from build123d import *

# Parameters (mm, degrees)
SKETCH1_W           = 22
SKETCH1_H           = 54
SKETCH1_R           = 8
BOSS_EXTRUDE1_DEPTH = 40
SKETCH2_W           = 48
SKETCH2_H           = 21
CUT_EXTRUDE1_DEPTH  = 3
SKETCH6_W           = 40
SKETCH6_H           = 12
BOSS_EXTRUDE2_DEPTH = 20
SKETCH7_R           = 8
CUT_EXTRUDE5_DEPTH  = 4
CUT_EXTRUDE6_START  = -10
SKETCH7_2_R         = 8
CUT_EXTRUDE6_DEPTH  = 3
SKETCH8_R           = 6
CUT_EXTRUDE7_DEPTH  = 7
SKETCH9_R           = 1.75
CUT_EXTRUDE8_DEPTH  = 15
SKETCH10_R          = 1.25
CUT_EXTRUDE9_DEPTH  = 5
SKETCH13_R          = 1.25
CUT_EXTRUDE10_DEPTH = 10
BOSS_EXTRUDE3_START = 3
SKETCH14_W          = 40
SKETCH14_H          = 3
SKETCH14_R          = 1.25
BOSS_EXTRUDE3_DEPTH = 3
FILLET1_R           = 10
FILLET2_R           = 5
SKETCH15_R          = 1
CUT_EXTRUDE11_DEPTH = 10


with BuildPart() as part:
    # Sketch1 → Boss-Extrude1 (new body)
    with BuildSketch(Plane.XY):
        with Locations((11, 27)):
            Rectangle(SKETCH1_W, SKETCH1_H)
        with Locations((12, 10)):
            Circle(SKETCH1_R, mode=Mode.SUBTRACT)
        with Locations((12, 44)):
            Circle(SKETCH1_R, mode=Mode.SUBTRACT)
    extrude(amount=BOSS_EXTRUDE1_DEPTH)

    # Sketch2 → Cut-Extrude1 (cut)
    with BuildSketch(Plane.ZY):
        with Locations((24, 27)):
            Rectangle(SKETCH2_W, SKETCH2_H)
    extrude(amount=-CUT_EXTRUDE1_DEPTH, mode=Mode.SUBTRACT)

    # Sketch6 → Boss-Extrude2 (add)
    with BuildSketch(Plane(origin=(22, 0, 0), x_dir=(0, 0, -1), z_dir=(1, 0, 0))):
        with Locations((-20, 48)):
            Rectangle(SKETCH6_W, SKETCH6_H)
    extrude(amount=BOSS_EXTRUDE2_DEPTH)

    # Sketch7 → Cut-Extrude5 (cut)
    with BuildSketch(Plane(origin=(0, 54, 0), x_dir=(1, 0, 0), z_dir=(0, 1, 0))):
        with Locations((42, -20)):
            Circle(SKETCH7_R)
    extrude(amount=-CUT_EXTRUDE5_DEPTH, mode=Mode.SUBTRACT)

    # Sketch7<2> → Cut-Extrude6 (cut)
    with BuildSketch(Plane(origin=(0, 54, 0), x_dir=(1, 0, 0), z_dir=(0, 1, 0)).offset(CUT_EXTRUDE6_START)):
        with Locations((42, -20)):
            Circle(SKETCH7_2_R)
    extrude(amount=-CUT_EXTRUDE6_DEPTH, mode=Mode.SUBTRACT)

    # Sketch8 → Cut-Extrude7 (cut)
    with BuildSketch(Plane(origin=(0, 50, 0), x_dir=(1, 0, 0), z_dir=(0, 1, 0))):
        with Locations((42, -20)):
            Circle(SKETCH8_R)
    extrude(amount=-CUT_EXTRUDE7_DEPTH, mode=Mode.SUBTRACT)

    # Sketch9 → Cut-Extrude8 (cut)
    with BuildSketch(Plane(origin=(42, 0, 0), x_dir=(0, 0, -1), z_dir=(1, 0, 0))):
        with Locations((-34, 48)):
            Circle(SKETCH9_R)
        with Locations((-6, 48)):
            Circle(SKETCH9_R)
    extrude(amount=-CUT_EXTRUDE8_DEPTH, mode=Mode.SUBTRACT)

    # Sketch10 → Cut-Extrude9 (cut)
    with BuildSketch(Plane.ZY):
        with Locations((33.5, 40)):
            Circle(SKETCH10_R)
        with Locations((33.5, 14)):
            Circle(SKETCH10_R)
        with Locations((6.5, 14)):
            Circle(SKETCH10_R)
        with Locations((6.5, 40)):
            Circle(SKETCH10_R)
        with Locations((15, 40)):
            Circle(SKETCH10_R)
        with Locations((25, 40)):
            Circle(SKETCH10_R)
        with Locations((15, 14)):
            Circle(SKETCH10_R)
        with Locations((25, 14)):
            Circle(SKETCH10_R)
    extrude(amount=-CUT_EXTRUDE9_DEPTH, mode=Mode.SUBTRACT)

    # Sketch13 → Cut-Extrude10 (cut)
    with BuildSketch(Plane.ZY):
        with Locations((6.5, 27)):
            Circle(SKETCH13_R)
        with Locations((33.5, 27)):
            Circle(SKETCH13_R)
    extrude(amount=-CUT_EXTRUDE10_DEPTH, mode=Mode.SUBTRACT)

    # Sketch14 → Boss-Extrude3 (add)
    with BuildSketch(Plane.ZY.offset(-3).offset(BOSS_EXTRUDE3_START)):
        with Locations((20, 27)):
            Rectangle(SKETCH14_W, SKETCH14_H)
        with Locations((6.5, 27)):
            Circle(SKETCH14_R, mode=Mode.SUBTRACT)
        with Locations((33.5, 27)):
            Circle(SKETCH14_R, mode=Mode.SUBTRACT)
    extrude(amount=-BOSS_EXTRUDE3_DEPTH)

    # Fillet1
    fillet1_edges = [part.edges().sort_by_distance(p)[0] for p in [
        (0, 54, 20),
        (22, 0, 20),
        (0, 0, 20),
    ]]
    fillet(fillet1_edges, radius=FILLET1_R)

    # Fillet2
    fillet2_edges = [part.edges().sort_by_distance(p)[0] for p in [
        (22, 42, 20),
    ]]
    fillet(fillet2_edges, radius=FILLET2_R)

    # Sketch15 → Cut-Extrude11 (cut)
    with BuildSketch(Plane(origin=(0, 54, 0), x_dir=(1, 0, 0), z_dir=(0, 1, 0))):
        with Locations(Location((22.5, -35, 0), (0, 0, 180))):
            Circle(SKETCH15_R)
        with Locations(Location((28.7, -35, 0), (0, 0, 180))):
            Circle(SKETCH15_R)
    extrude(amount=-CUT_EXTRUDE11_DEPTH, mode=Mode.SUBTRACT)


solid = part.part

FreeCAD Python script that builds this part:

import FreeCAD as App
import Part
import Sketcher


def edges_at(feature, points):
    """Names of the edges that pass closest to the given points."""
    edges = feature.Shape.Edges
    near = lambda p: min(range(len(edges)), key=lambda i: edges[i].distToShape(Part.Vertex(*p))[0])
    return sorted({f"Edge{near(p) + 1}" for p in points})


def add_polygon(sketch, points):
    """Adds a closed chain of lines whose ends are joined by coincident constraints."""
    first, n = sketch.GeometryCount, len(points)
    for a, b in zip(points, points[1:] + points[:1]):
        sketch.addGeometry(Part.LineSegment(App.Vector(*a, 0), App.Vector(*b, 0)), False)
    for i in range(n):
        sketch.addConstraint(Sketcher.Constraint("Coincident", first + i, 2, first + (i + 1) % n, 1))

doc = App.newDocument("Part")
body = doc.addObject("PartDesign::Body", "Body")

sketch1 = doc.addObject("Sketcher::SketchObject", "Sketch")
body.addObject(sketch1)
sketch1.AttachmentSupport = (doc.XY_Plane, [""])
sketch1.MapMode = "FlatFace"
add_polygon(sketch1, [(0, 54), (0, 0), (22, 0), (22, 54)])
sketch1.addGeometry(Part.Circle(App.Vector(12, 10, 0), App.Vector(0, 0, 1), 8), False)
sketch1.addGeometry(Part.Circle(App.Vector(12, 44, 0), App.Vector(0, 0, 1), 8), False)
sketch1.addConstraint([
    Sketcher.Constraint("Vertical", 0),
    Sketcher.Constraint("Horizontal", 1),
    Sketcher.Constraint("Vertical", 2),
    Sketcher.Constraint("Horizontal", 3),
    Sketcher.Constraint("Coincident", 0, 2, -1, 1),
    Sketcher.Constraint("Equal", 4, 5),
    Sketcher.Constraint("Vertical", 4, 3, 5, 3),
    Sketcher.Constraint("Diameter", 4, 16.0),
    Sketcher.Constraint("DistanceX", 1, 1, 1, 2, 22.0),
    Sketcher.Constraint("DistanceY", 0, 2, 0, 1, 54.0),
    Sketcher.Constraint("DistanceX", -1, 1, 4, 3, 12.0),
    Sketcher.Constraint("DistanceY", -1, 1, 4, 3, 10.0),
    Sketcher.Constraint("DistanceY", -1, 1, 5, 3, 44.0),
])
pad1 = doc.addObject("PartDesign::Pad", "Pad")
body.addObject(pad1)
pad1.Profile = sketch1
pad1.Length = 40

sketch2 = doc.addObject("Sketcher::SketchObject", "Sketch001")
body.addObject(sketch2)
sketch2.AttachmentSupport = (doc.YZ_Plane, [""])
sketch2.MapMode = "FlatFace"
add_polygon(sketch2, [(37.5, 0), (16.5, 0), (16.5, 48), (37.5, 48)])
sketch2.addConstraint([
    Sketcher.Constraint("Horizontal", 0),
    Sketcher.Constraint("Vertical", 1),
    Sketcher.Constraint("Horizontal", 2),
    Sketcher.Constraint("Vertical", 3),
    Sketcher.Constraint("PointOnObject", 0, 2, -1),
    Sketcher.Constraint("DistanceX", 0, 2, 0, 1, 21.0),
    Sketcher.Constraint("DistanceY", 1, 1, 1, 2, 48.0),
    Sketcher.Constraint("DistanceX", -1, 1, 0, 2, 16.5),
])
pocket1 = doc.addObject("PartDesign::Pocket", "Pocket")
body.addObject(pocket1)
pocket1.Profile = sketch2
pocket1.Length = 3
pocket1.Reversed = True

sketch3 = doc.addObject("Sketcher::SketchObject", "Sketch002")
body.addObject(sketch3)
sketch3.AttachmentSupport = (doc.YZ_Plane, [""])
sketch3.MapMode = "FlatFace"
sketch3.AttachmentOffset = App.Placement(App.Vector(0, 0, 22), App.Rotation())
add_polygon(sketch3, [(54, 40), (42, 40), (42, 0), (54, 0)])
sketch3.addConstraint([
    Sketcher.Constraint("Horizontal", 0),
    Sketcher.Constraint("Vertical", 1),
    Sketcher.Constraint("Horizontal", 2),
    Sketcher.Constraint("Vertical", 3),
    Sketcher.Constraint("PointOnObject", 1, 2, -1),
    Sketcher.Constraint("DistanceX", 0, 2, 0, 1, 12.0),
    Sketcher.Constraint("DistanceY", 1, 2, 1, 1, 40.0),
    Sketcher.Constraint("DistanceX", -1, 1, 0, 2, 42.0),
])
pad2 = doc.addObject("PartDesign::Pad", "Pad001")
body.addObject(pad2)
pad2.Profile = sketch3
pad2.Length = 20

sketch4 = doc.addObject("Sketcher::SketchObject", "Sketch003")
body.addObject(sketch4)
sketch4.AttachmentSupport = (doc.XZ_Plane, [""])
sketch4.MapMode = "FlatFace"
sketch4.AttachmentOffset = App.Placement(App.Vector(0, 0, -54), App.Rotation())
sketch4.addGeometry(Part.Circle(App.Vector(42, 20, 0), App.Vector(0, 0, 1), 8), False)
sketch4.addConstraint([
    Sketcher.Constraint("Diameter", 0, 16.0),
    Sketcher.Constraint("DistanceX", -1, 1, 0, 3, 42.0),
    Sketcher.Constraint("DistanceY", -1, 1, 0, 3, 20.0),
])
pocket2 = doc.addObject("PartDesign::Pocket", "Pocket001")
body.addObject(pocket2)
pocket2.Profile = sketch4
pocket2.Length = 4
pocket2.Reversed = True

sketch5 = doc.addObject("Sketcher::SketchObject", "Sketch004")
body.addObject(sketch5)
sketch5.AttachmentSupport = (doc.XZ_Plane, [""])
sketch5.MapMode = "FlatFace"
sketch5.AttachmentOffset = App.Placement(App.Vector(0, 0, -44), App.Rotation())
sketch5.addGeometry(Part.Circle(App.Vector(42, 20, 0), App.Vector(0, 0, 1), 8), False)
sketch5.addConstraint([
    Sketcher.Constraint("Diameter", 0, 16.0),
    Sketcher.Constraint("DistanceX", -1, 1, 0, 3, 42.0),
    Sketcher.Constraint("DistanceY", -1, 1, 0, 3, 20.0),
])
pocket3 = doc.addObject("PartDesign::Pocket", "Pocket002")
body.addObject(pocket3)
pocket3.Profile = sketch5
pocket3.Length = 3
pocket3.Reversed = True

sketch6 = doc.addObject("Sketcher::SketchObject", "Sketch005")
body.addObject(sketch6)
sketch6.AttachmentSupport = (doc.XZ_Plane, [""])
sketch6.MapMode = "FlatFace"
sketch6.AttachmentOffset = App.Placement(App.Vector(0, 0, -50), App.Rotation())
sketch6.addGeometry(Part.Circle(App.Vector(42, 20, 0), App.Vector(0, 0, 1), 6), False)
sketch6.addConstraint([
    Sketcher.Constraint("Diameter", 0, 12.0),
    Sketcher.Constraint("DistanceX", -1, 1, 0, 3, 42.0),
    Sketcher.Constraint("DistanceY", -1, 1, 0, 3, 20.0),
])
pocket4 = doc.addObject("PartDesign::Pocket", "Pocket003")
body.addObject(pocket4)
pocket4.Profile = sketch6
pocket4.Length = 7
pocket4.Reversed = True

sketch7 = doc.addObject("Sketcher::SketchObject", "Sketch006")
body.addObject(sketch7)
sketch7.AttachmentSupport = (doc.YZ_Plane, [""])
sketch7.MapMode = "FlatFace"
sketch7.AttachmentOffset = App.Placement(App.Vector(0, 0, 42), App.Rotation())
sketch7.addGeometry([
    Part.Circle(App.Vector(48, 34, 0), App.Vector(0, 0, 1), 1.75),
    Part.Circle(App.Vector(48, 6, 0), App.Vector(0, 0, 1), 1.75),
], False)
sketch7.addConstraint([
    Sketcher.Constraint("Equal", 0, 1),
    Sketcher.Constraint("Vertical", 0, 3, 1, 3),
    Sketcher.Constraint("Diameter", 0, 3.5),
    Sketcher.Constraint("DistanceX", -1, 1, 0, 3, 48.0),
    Sketcher.Constraint("DistanceY", -1, 1, 0, 3, 34.0),
    Sketcher.Constraint("DistanceY", -1, 1, 1, 3, 6.0),
])
pocket5 = doc.addObject("PartDesign::Pocket", "Pocket004")
body.addObject(pocket5)
pocket5.Profile = sketch7
pocket5.Length = 15

sketch8 = doc.addObject("Sketcher::SketchObject", "Sketch007")
body.addObject(sketch8)
sketch8.AttachmentSupport = (doc.YZ_Plane, [""])
sketch8.MapMode = "FlatFace"
sketch8.addGeometry([
    Part.Circle(App.Vector(40, 33.5, 0), App.Vector(0, 0, 1), 1.25),
    Part.Circle(App.Vector(14, 33.5, 0), App.Vector(0, 0, 1), 1.25),
    Part.Circle(App.Vector(14, 6.5, 0), App.Vector(0, 0, 1), 1.25),
    Part.Circle(App.Vector(40, 6.5, 0), App.Vector(0, 0, 1), 1.25),
    Part.Circle(App.Vector(40, 15, 0), App.Vector(0, 0, 1), 1.25),
    Part.Circle(App.Vector(40, 25, 0), App.Vector(0, 0, 1), 1.25),
    Part.Circle(App.Vector(14, 15, 0), App.Vector(0, 0, 1), 1.25),
    Part.Circle(App.Vector(14, 25, 0), App.Vector(0, 0, 1), 1.25),
], False)
sketch8.addConstraint([
    Sketcher.Constraint("Equal", 0, 1),
    Sketcher.Constraint("Equal", 1, 2),
    Sketcher.Constraint("Equal", 2, 3),
    Sketcher.Constraint("Equal", 3, 4),
    Sketcher.Constraint("Equal", 4, 5),
    Sketcher.Constraint("Equal", 5, 6),
    Sketcher.Constraint("Equal", 6, 7),
    Sketcher.Constraint("Horizontal", 0, 3, 1, 3),
    Sketcher.Constraint("Horizontal", 2, 3, 3, 3),
    Sketcher.Constraint("Horizontal", 4, 3, 6, 3),
    Sketcher.Constraint("Horizontal", 5, 3, 7, 3),
    Sketcher.Constraint("Vertical", 1, 3, 2, 3),
    Sketcher.Constraint("Vertical", 0, 3, 3, 3),
    Sketcher.Constraint("Vertical", 3, 3, 4, 3),
    Sketcher.Constraint("Vertical", 4, 3, 5, 3),
    Sketcher.Constraint("Vertical", 2, 3, 6, 3),
    Sketcher.Constraint("Vertical", 6, 3, 7, 3),
    Sketcher.Constraint("Diameter", 0, 2.5),
    Sketcher.Constraint("DistanceX", -1, 1, 0, 3, 40.0),
    Sketcher.Constraint("DistanceX", -1, 1, 1, 3, 14.0),
    Sketcher.Constraint("DistanceY", -1, 1, 4, 3, 15.0),
    Sketcher.Constraint("DistanceY", -1, 1, 5, 3, 25.0),
    Sketcher.Constraint("DistanceY", 2, 3, 1, 3, 27.0),
    Sketcher.Constraint("DistanceY", -1, 1, 0, 3, 33.5),
])
pocket6 = doc.addObject("PartDesign::Pocket", "Pocket005")
body.addObject(pocket6)
pocket6.Profile = sketch8
pocket6.Length = 5
pocket6.Reversed = True

sketch9 = doc.addObject("Sketcher::SketchObject", "Sketch008")
body.addObject(sketch9)
sketch9.AttachmentSupport = (doc.YZ_Plane, [""])
sketch9.MapMode = "FlatFace"
sketch9.addGeometry([
    Part.Circle(App.Vector(27, 6.5, 0), App.Vector(0, 0, 1), 1.25),
    Part.Circle(App.Vector(27, 33.5, 0), App.Vector(0, 0, 1), 1.25),
], False)
sketch9.addConstraint([
    Sketcher.Constraint("Equal", 0, 1),
    Sketcher.Constraint("Vertical", 0, 3, 1, 3),
    Sketcher.Constraint("Diameter", 0, 2.5),
    Sketcher.Constraint("DistanceX", -1, 1, 0, 3, 27.0),
    Sketcher.Constraint("DistanceY", 0, 3, 1, 3, 27.0),
    Sketcher.Constraint("DistanceY", -1, 1, 0, 3, 6.5),
])
pocket7 = doc.addObject("PartDesign::Pocket", "Pocket006")
body.addObject(pocket7)
pocket7.Profile = sketch9
pocket7.Length = 10
pocket7.Reversed = True

sketch10 = doc.addObject("Sketcher::SketchObject", "Sketch009")
body.addObject(sketch10)
sketch10.AttachmentSupport = (doc.YZ_Plane, [""])
sketch10.MapMode = "FlatFace"
add_polygon(sketch10, [(28.5, 0), (25.5, 0), (25.5, 40), (28.5, 40)])
sketch10.addGeometry(Part.Circle(App.Vector(27, 6.5, 0), App.Vector(0, 0, 1), 1.25), False)
sketch10.addGeometry(Part.Circle(App.Vector(27, 33.5, 0), App.Vector(0, 0, 1), 1.25), False)
sketch10.addConstraint([
    Sketcher.Constraint("Horizontal", 0),
    Sketcher.Constraint("Vertical", 1),
    Sketcher.Constraint("Horizontal", 2),
    Sketcher.Constraint("Vertical", 3),
    Sketcher.Constraint("Equal", 4, 5),
    Sketcher.Constraint("PointOnObject", 0, 2, -1),
    Sketcher.Constraint("Vertical", 4, 3, 5, 3),
    Sketcher.Constraint("Diameter", 4, 2.5),
    Sketcher.Constraint("DistanceX", 0, 2, 0, 1, 3.0),
    Sketcher.Constraint("DistanceY", 1, 1, 1, 2, 40.0),
    Sketcher.Constraint("DistanceX", -1, 1, 4, 3, 27.0),
    Sketcher.Constraint("DistanceY", 4, 3, 5, 3, 27.0),
    Sketcher.Constraint("DistanceY", -1, 1, 4, 3, 6.5),
    Sketcher.Constraint("DistanceX", -1, 1, 0, 2, 25.5),
])
pad3 = doc.addObject("PartDesign::Pad", "Pad002")
body.addObject(pad3)
pad3.Profile = sketch10
pad3.Length = 3
doc.recompute()

fillet = doc.addObject("PartDesign::Fillet", "Fillet")
body.addObject(fillet)
fillet.Base = (pad3, edges_at(pad3, [(0, 54, 20), (22, 0, 20), (0, 0, 20)]))
fillet.Radius = 10
doc.recompute()

fillet2 = doc.addObject("PartDesign::Fillet", "Fillet001")
body.addObject(fillet2)
fillet2.Base = (fillet, edges_at(fillet, [(22, 42, 20)]))
fillet2.Radius = 5

sketch11 = doc.addObject("Sketcher::SketchObject", "Sketch010")
body.addObject(sketch11)
sketch11.AttachmentSupport = (doc.XZ_Plane, [""])
sketch11.MapMode = "FlatFace"
sketch11.AttachmentOffset = App.Placement(App.Vector(0, 0, -54), App.Rotation())
sketch11.addGeometry([
    Part.Circle(App.Vector(22.5, 35, 0), App.Vector(0, 0, 1), 1),
    Part.Circle(App.Vector(28.7, 35, 0), App.Vector(0, 0, 1), 1),
], False)
sketch11.addConstraint([
    Sketcher.Constraint("Equal", 0, 1),
    Sketcher.Constraint("Horizontal", 0, 3, 1, 3),
    Sketcher.Constraint("Diameter", 0, 2.0),
    Sketcher.Constraint("DistanceY", -1, 1, 0, 3, 35.0),
    Sketcher.Constraint("DistanceX", -1, 1, 0, 3, 22.5),
    Sketcher.Constraint("DistanceX", -1, 1, 1, 3, 28.7),
])
pocket8 = doc.addObject("PartDesign::Pocket", "Pocket007")
body.addObject(pocket8)
pocket8.Profile = sketch11
pocket8.Length = 10
pocket8.Reversed = True

doc.recompute()
